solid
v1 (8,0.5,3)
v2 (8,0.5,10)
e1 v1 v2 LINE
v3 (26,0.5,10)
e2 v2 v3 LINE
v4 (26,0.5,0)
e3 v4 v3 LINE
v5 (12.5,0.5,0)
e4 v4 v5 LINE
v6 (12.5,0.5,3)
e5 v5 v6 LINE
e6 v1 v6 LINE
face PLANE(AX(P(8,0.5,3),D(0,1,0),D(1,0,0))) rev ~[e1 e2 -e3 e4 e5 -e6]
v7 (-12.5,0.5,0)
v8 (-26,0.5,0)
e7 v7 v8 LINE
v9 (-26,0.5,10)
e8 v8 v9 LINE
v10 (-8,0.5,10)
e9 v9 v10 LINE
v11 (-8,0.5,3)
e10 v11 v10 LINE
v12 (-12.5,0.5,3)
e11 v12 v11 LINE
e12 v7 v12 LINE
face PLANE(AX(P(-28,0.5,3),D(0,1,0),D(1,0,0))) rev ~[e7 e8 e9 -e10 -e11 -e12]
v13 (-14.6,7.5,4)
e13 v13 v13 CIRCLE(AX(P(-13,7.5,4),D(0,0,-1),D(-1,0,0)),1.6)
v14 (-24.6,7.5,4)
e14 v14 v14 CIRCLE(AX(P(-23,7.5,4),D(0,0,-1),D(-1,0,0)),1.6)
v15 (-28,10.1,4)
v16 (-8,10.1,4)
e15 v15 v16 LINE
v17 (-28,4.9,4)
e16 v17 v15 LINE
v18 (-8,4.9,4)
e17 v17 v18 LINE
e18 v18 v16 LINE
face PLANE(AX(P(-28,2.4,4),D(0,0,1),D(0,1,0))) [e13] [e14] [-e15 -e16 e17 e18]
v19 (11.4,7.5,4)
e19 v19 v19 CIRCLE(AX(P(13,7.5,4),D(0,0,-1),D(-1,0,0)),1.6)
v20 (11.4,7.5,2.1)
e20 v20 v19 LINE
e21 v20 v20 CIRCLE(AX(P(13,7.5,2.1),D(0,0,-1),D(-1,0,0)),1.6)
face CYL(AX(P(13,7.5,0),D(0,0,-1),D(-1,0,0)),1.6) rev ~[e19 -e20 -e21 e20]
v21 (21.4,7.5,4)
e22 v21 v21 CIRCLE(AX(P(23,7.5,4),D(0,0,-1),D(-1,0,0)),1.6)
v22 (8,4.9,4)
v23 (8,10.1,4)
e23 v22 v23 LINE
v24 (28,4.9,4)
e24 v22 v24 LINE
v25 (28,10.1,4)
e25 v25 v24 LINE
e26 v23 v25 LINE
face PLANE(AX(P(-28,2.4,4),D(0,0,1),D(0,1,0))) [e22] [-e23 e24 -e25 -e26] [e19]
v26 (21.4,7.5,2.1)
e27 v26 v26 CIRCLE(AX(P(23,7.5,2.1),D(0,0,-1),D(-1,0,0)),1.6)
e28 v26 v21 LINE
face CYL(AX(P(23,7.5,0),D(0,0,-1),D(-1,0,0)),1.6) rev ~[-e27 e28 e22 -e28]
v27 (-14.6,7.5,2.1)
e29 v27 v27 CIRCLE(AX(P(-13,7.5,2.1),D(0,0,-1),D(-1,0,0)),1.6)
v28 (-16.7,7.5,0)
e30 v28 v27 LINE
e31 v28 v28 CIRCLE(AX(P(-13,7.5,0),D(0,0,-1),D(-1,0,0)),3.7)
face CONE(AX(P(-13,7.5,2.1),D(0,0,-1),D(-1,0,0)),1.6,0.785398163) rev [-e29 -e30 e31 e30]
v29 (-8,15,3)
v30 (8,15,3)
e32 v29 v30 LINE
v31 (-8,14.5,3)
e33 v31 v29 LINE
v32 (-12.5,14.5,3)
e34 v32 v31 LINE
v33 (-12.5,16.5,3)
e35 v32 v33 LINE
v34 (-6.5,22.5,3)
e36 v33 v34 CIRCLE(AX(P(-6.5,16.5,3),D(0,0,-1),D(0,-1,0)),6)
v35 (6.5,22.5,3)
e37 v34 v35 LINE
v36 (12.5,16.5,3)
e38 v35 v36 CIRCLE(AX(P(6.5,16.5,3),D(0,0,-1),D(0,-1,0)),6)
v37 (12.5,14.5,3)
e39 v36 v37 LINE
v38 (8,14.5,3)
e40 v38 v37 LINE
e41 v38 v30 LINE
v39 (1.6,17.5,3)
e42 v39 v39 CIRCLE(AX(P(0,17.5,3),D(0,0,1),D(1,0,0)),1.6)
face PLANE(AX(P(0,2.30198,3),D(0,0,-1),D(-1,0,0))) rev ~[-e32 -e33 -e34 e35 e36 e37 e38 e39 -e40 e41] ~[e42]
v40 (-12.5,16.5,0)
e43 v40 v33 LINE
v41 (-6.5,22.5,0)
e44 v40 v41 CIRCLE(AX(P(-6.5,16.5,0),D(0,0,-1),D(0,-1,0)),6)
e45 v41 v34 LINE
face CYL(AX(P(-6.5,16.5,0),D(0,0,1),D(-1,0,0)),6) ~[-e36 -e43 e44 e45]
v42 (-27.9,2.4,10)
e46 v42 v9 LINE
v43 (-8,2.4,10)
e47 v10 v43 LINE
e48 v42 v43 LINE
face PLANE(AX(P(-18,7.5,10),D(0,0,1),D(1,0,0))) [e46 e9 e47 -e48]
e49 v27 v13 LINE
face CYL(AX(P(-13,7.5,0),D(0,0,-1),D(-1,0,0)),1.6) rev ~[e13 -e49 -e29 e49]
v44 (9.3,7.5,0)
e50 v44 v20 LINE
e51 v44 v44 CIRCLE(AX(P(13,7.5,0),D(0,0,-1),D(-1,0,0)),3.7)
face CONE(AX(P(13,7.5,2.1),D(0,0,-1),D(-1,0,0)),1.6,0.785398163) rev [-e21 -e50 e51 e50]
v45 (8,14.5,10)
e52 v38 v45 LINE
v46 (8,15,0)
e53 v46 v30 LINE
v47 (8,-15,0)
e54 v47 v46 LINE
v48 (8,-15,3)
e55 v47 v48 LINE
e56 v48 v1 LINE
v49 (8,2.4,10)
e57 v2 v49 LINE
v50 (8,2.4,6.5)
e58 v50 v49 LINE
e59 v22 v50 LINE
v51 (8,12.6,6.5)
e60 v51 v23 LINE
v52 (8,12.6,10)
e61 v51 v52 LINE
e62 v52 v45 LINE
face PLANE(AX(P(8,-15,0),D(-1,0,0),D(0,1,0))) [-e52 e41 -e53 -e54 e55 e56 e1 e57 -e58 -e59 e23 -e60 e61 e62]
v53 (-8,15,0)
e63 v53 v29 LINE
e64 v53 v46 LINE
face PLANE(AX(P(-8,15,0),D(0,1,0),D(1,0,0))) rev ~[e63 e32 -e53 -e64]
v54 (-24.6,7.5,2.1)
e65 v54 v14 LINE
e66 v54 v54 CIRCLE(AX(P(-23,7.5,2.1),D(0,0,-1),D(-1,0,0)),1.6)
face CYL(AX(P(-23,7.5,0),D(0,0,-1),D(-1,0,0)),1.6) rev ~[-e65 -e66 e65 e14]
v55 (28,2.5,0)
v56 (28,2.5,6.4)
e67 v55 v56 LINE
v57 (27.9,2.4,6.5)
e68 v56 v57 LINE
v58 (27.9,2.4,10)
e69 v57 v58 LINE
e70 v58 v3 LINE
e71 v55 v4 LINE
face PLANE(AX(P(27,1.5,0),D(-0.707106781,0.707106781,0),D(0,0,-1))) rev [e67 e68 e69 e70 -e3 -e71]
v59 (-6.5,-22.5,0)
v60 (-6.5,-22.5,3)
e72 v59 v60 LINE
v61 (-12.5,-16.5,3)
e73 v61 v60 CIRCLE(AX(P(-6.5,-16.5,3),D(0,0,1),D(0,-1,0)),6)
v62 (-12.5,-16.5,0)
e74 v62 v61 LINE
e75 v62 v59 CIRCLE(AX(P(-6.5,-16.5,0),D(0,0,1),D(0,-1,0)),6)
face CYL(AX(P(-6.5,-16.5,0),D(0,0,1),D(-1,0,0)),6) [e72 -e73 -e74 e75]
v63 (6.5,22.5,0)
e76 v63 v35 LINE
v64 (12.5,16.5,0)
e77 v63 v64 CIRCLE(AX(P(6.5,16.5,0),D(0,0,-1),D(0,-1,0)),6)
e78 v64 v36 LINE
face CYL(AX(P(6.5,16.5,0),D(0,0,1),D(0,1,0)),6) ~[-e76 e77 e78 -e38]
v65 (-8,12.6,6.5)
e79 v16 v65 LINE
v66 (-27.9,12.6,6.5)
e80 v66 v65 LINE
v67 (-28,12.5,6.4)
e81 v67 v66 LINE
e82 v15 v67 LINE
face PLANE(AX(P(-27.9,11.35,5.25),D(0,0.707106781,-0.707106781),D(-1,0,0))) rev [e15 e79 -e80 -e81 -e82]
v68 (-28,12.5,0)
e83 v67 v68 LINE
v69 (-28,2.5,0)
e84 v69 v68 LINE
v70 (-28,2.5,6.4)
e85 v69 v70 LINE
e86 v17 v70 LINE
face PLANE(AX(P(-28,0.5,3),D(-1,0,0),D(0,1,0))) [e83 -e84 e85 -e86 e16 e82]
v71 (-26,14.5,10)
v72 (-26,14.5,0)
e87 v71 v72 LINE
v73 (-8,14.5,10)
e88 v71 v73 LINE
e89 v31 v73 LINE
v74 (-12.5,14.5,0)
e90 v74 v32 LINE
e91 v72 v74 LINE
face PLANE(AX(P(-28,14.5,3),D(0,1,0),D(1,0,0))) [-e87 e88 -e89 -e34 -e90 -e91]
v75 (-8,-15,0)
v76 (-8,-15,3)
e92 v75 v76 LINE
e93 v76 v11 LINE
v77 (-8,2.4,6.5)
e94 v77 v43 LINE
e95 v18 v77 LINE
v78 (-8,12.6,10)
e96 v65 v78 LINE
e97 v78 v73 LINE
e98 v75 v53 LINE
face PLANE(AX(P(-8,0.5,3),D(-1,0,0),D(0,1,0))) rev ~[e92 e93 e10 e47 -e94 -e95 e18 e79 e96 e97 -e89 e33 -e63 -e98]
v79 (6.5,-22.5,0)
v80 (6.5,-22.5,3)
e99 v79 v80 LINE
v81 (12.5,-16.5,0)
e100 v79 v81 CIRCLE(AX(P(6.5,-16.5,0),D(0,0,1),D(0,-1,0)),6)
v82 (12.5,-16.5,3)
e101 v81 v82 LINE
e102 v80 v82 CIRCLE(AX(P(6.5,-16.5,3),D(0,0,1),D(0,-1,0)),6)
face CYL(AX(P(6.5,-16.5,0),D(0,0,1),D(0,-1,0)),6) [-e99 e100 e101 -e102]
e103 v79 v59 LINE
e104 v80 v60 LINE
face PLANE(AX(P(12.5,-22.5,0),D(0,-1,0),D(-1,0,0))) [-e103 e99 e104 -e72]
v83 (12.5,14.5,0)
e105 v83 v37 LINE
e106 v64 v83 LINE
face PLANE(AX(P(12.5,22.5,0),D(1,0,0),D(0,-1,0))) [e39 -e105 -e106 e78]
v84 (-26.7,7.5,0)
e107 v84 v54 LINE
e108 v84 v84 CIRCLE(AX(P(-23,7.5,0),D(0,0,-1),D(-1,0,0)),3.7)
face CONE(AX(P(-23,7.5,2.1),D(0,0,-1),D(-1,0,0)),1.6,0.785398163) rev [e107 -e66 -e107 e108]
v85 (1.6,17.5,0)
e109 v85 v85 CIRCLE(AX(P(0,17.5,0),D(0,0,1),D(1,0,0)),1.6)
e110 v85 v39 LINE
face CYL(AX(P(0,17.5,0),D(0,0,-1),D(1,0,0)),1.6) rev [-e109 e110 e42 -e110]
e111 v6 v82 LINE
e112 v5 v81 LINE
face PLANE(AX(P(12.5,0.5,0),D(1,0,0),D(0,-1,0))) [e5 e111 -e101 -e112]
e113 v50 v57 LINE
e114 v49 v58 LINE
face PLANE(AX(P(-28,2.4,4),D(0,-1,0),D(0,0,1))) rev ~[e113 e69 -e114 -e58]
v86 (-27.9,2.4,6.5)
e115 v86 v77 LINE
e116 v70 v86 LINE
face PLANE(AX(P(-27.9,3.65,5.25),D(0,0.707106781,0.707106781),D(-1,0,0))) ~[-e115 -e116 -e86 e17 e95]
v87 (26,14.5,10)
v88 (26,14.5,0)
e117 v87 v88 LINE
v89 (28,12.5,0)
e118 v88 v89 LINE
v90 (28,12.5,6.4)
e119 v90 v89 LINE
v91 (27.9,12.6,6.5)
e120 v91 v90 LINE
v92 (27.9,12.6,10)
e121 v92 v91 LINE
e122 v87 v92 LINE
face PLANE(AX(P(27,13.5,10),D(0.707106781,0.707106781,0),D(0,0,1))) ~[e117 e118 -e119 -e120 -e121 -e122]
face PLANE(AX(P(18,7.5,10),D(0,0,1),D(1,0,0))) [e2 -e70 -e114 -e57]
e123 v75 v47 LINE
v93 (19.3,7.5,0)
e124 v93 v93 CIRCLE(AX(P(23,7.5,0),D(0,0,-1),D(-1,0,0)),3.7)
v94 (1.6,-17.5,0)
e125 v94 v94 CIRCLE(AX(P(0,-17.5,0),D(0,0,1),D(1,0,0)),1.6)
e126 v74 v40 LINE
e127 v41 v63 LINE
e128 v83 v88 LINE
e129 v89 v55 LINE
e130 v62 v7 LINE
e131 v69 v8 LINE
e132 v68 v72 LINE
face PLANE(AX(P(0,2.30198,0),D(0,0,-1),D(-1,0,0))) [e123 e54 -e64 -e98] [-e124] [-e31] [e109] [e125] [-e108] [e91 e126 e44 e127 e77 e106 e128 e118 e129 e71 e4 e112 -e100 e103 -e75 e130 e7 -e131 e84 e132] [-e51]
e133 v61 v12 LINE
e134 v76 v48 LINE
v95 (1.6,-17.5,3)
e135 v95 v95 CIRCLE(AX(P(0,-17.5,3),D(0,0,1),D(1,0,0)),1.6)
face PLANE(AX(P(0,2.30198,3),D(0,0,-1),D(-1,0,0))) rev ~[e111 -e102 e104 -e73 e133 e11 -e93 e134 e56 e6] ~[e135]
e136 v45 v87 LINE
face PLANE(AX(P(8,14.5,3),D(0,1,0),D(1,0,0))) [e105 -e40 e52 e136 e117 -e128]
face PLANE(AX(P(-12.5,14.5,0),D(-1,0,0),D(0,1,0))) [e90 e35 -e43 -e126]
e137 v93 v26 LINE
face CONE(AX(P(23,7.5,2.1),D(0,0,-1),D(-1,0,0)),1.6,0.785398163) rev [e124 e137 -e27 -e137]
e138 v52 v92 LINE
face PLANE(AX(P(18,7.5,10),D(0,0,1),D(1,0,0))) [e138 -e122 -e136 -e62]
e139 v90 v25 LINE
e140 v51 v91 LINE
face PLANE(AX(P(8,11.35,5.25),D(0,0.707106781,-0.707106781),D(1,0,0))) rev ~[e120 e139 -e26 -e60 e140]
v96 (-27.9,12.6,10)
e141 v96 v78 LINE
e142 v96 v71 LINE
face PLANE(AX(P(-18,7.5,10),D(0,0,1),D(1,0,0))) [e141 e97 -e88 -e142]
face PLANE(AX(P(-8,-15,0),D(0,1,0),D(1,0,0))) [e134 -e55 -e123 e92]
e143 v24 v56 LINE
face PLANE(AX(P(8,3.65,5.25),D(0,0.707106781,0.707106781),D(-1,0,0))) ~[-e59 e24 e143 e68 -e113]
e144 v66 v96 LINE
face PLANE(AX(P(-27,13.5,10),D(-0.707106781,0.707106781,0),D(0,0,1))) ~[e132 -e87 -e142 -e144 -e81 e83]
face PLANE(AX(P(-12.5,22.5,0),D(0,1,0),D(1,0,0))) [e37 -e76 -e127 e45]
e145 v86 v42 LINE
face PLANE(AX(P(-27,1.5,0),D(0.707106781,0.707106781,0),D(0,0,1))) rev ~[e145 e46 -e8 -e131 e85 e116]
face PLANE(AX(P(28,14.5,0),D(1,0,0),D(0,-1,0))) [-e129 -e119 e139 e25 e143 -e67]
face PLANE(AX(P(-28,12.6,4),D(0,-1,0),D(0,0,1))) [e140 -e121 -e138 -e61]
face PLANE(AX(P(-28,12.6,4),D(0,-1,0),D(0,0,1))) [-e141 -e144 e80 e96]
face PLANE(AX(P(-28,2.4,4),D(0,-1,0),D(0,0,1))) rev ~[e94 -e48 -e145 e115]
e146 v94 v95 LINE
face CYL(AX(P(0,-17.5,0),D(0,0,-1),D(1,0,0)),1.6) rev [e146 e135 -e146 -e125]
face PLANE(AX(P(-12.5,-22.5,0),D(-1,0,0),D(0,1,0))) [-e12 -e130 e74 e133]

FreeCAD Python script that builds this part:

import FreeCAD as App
import Part
import Sketcher

V = App.Vector


def edges_at(feature, points):
    """Names of the edges that pass closest to the given points."""
    edges = feature.Shape.Edges
    near = lambda p: min(range(len(edges)), key=lambda i: edges[i].distToShape(Part.Vertex(*p))[0])
    return sorted({f"Edge{near(p) + 1}" for p in points})


def add_polygon(sketch, points):
    """Adds a closed chain of lines whose ends are joined by coincident constraints."""
    first, n = sketch.GeometryCount, len(points)
    for a, b in zip(points, points[1:] + points[:1]):
        sketch.addGeometry(Part.LineSegment(App.Vector(*a, 0), App.Vector(*b, 0)), False)
    for i in range(n):
        sketch.addConstraint(Sketcher.Constraint("Coincident", first + i, 2, first + (i + 1) % n, 1))

doc = App.newDocument("Part")
body = doc.addObject("PartDesign::Body", "Body")

sketch1 = body.newObject("Sketcher::SketchObject", "Sketch")
sketch1.AttachmentSupport = (doc.getObject("XY_Plane"), [""])
sketch1.MapMode = "FlatFace"
add_polygon(sketch1, [(-12.5, 22.5), (-12.5, 14.5), (-28, 14.5), (-28, 0.5), (-12.5, 0.5), (-12.5, -22.5), (12.5, -22.5), (12.5, 0.5), (28, 0.5), (28, 14.5), (12.5, 14.5), (12.5, 22.5)])
sketch1.addGeometry(Part.Circle(V(0, -17.5, 0), V(0, 0, 1), 1.6), False)
add_polygon(sketch1, [(-8, -15), (-8, 15), (8, 15), (8, -15)])
sketch1.addGeometry(Part.Circle(V(0, 17.5, 0), V(0, 0, 1), 1.6), False)
sketch1.addConstraint([
    Sketcher.Constraint("Vertical", 0),
    Sketcher.Constraint("Horizontal", 1),
    Sketcher.Constraint("Vertical", 2),
    Sketcher.Constraint("Horizontal", 3),
    Sketcher.Constraint("Vertical", 4),
    Sketcher.Constraint("Horizontal", 5),
    Sketcher.Constraint("Vertical", 6),
    Sketcher.Constraint("Horizontal", 7),
    Sketcher.Constraint("Vertical", 8),
    Sketcher.Constraint("Horizontal", 9),
    Sketcher.Constraint("Vertical", 10),
    Sketcher.Constraint("Horizontal", 11),
    Sketcher.Constraint("Vertical", 13),
    Sketcher.Constraint("Horizontal", 14),
    Sketcher.Constraint("Vertical", 15),
    Sketcher.Constraint("Horizontal", 16),
    Sketcher.Constraint("Equal", 12, 17),
    Sketcher.Constraint("Symmetric", 12, 3, 17, 3, -1, 1),
    Sketcher.Constraint("Symmetric", 4, 2, 10, 2, -1, 1),
    Sketcher.Constraint("Symmetric", 13, 2, 15, 2, -1, 1),
    Sketcher.Constraint("Symmetric", 3, 2, 6, 2, -2),
    Sketcher.Constraint("Symmetric", 1, 2, 8, 2, -2),
    Sketcher.Constraint("PointOnObject", 12, 3, -2),
    Sketcher.Constraint("Vertical", 0, 2, 3, 2),
    Sketcher.Constraint("Diameter", 12, 3.2),
    Sketcher.Constraint("DistanceX", 5, 1, 5, 2, 25.0),
    Sketcher.Constraint("DistanceX", 14, 1, 14, 2, 16.0),
    Sketcher.Constraint("DistanceY", 0, 2, 0, 1, 8.0),
    Sketcher.Constraint("DistanceY", 2, 2, 2, 1, 14.0),
    Sketcher.Constraint("DistanceY", 4, 2, 4, 1, 23.0),
    Sketcher.Constraint("DistanceY", 13, 1, 13, 2, 30.0),
    Sketcher.Constraint("DistanceX", 1, 2, 1, 1, 15.5),
    Sketcher.Constraint("DistanceY", 12, 3, 17, 3, 35.0),
])
pad1 = body.newObject("PartDesign::Pad", "Pad")
pad1.Profile = sketch1
pad1.Length = 3

sketch2 = body.newObject("Sketcher::SketchObject", "Sketch001")
sketch2.AttachmentSupport = (doc.getObject("XY_Plane"), [""])
sketch2.MapMode = "FlatFace"
sketch2.AttachmentOffset = App.Placement(V(0, 0, 3), App.Rotation())
add_polygon(sketch2, [(-28, 14), (-28, 0), (-8, 0), (-8, 14)])
add_polygon(sketch2, [(8, 14), (8, 0), (28, 0), (28, 14)])
sketch2.addConstraint([
    Sketcher.Constraint("Vertical", 0),
    Sketcher.Constraint("Horizontal", 1),
    Sketcher.Constraint("Vertical", 2),
    Sketcher.Constraint("Horizontal", 3),
    Sketcher.Constraint("Vertical", 4),
    Sketcher.Constraint("Horizontal", 5),
    Sketcher.Constraint("Vertical", 6),
    Sketcher.Constraint("Horizontal", 7),
    Sketcher.Constraint("Symmetric", 1, 2, 4, 2, -2),
    Sketcher.Constraint("Symmetric", 3, 2, 6, 2, -2),
    Sketcher.Constraint("DistanceX", 1, 1, 1, 2, 20.0),
    Sketcher.Constraint("DistanceY", 0, 2, 0, 1, 14.0),
    Sketcher.Constraint("DistanceX", 0, 2, -1, 1, 28.0),
    Sketcher.Constraint("DistanceY", -1, 1, 0, 2, 0.5),
])
pad2 = body.newObject("PartDesign::Pad", "Pad001")
pad2.Profile = sketch2
pad2.Length = 7

sketch3 = body.newObject("Sketcher::SketchObject", "Sketch002")
sketch3.AttachmentSupport = (doc.getObject("YZ_Plane"), [""])
sketch3.MapMode = "FlatFace"
sketch3.AttachmentOffset = App.Placement(V(0, 0, -28), App.Rotation())
add_polygon(sketch3, [(13, 4), (2, 4), (2, 14), (13, 14)])
sketch3.addConstraint([
    Sketcher.Constraint("Horizontal", 0),
    Sketcher.Constraint("Vertical", 1),
    Sketcher.Constraint("Horizontal", 2),
    Sketcher.Constraint("Vertical", 3),
    Sketcher.Constraint("DistanceX", 0, 2, 0, 1, 10.2),
    Sketcher.Constraint("DistanceY", -1, 1, 0, 2, 4.0),
    Sketcher.Constraint("DistanceX", -1, 1, 0, 2, 2.4),
    Sketcher.Constraint("DistanceY", 1, 1, 1, 2, 9.671871),
])
pocket1 = body.newObject("PartDesign::Pocket", "Pocket")
pocket1.Profile = sketch3
pocket1.Type = "ThroughAll"
pocket1.Reversed = True
doc.recompute()

chamfer = body.newObject("PartDesign::Chamfer", "Chamfer")
chamfer.Base = (pocket1, edges_at(pocket1, [
    (28, 0.5, 5),
    (28, 14.5, 5),
    (-28, 0.5, 5),
    (-28, 14.5, 5),
]))
chamfer.Size = 2
doc.recompute()

chamfer2 = body.newObject("PartDesign::Chamfer", "Chamfer001")
chamfer2.Base = (chamfer, edges_at(chamfer, [
    (-17.95, 12.6, 4),
    (-17.95, 2.4, 4),
    (17.95, 12.6, 4),
    (17.95, 2.4, 4),
]))
chamfer2.Size = 2.5

sketch4 = body.newObject("Sketcher::SketchObject", "Sketch003")
sketch4.AttachmentSupport = (doc.getObject("XY_Plane"), [""])
sketch4.MapMode = "FlatFace"
sketch4.addGeometry([
    Part.Circle(V(-23, 7.5, 0), V(0, 0, 1), 1.6),
    Part.Circle(V(-13, 7.5, 0), V(0, 0, 1), 1.6),
    Part.Circle(V(13, 7.5, 0), V(0, 0, 1), 1.6),
    Part.Circle(V(23, 7.5, 0), V(0, 0, 1), 1.6),
], False)
sketch4.addConstraint([
    Sketcher.Constraint("Equal", 0, 1),
    Sketcher.Constraint("Equal", 1, 2),
    Sketcher.Constraint("Equal", 2, 3),
    Sketcher.Constraint("Symmetric", 1, 3, 2, 3, -2),
    Sketcher.Constraint("Symmetric", 0, 3, 3, 3, -2),
    Sketcher.Constraint("Horizontal", 0, 3, 1, 3),
    Sketcher.Constraint("Diameter", 0, 3.2),
    Sketcher.Constraint("DistanceX", 0, 3, -1, 1, 23.0),
    Sketcher.Constraint("DistanceX", 1, 3, -1, 1, 13.0),
    Sketcher.Constraint("DistanceY", -1, 1, 0, 3, 7.5),
])
pocket2 = body.newObject("PartDesign::Pocket", "Pocket001")
pocket2.Profile = sketch4
pocket2.Length = 7
pocket2.Reversed = True
doc.recompute()

fillet = body.newObject("PartDesign::Fillet", "Fillet")
fillet.Base = (pocket2, edges_at(pocket2, [
    (12.5, -22.5, 1.5),
    (-12.5, -22.5, 1.5),
    (-12.5, 22.5, 1.5),
    (12.5, 22.5, 1.5),
]))
fillet.Radius = 6
doc.recompute()

chamfer3 = body.newObject("PartDesign::Chamfer", "Chamfer002")
chamfer3.Base = (fillet, edges_at(fillet, [
    (-21.4, 7.5, 0),
    (-11.4, 7.5, 0),
    (14.6, 7.5, 0),
    (24.6, 7.5, 0),
]))
chamfer3.Size = 2.1

doc.recompute()
